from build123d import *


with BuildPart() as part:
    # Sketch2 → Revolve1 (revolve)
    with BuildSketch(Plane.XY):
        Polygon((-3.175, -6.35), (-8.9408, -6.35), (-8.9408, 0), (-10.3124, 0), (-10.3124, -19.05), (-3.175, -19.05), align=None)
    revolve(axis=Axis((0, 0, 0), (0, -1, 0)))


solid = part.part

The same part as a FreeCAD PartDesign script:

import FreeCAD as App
import Part
import Sketcher
Q = App.Units.Quantity


def add_polygon(sketch, points):
    """Adds a closed chain of lines whose ends are joined by coincident constraints."""
    first, n = sketch.GeometryCount, len(points)
    for a, b in zip(points, points[1:] + points[:1]):
        sketch.addGeometry(Part.LineSegment(App.Vector(*a, 0), App.Vector(*b, 0)), False)
    for i in range(n):
        sketch.addConstraint(Sketcher.Constraint("Coincident", first + i, 2, first + (i + 1) % n, 1))

doc = App.newDocument("Part")
body = doc.addObject("PartDesign::Body", "Body")

# Sketch on XY plane
sketch1 = body.newObject("Sketcher::SketchObject", "Sketch")
sketch1.AttachmentSupport = (doc.getObject("XY_Plane"), [""])
sketch1.MapMode = "FlatFace"
add_polygon(sketch1, [(-3.2, -6.3), (-8.9, -6.3), (-8.9, 0), (-10.3, 0), (-10.3, -19.1), (-3.2, -19.1)])  # lines 0-5
sketch1.addConstraint([
    Sketcher.Constraint("Horizontal", 0),
    Sketcher.Constraint("Vertical", 1),
    Sketcher.Constraint("Horizontal", 2),
    Sketcher.Constraint("Vertical", 3),
    Sketcher.Constraint("Horizontal", 4),
    Sketcher.Constraint("Vertical", 5),
    Sketcher.Constraint("PointOnObject", 1, 2, -1),
    Sketcher.Constraint("DistanceY", 5, 1, 5, 2, Q("0.5 in")),
    Sketcher.Constraint("DistanceY", 1, 1, 1, 2, Q("0.25 in")),
    Sketcher.Constraint("DistanceX", 0, 2, 0, 1, Q("0.227 in")),
    Sketcher.Constraint("DistanceX", 2, 2, 2, 1, Q("0.054 in")),
    Sketcher.Constraint("DistanceX", 0, 2, -1, 1, Q("0.352 in")),
])
revolution = body.newObject("PartDesign::Revolution", "Revolution")
revolution.Profile = sketch1
revolution.ReferenceAxis = (sketch1, ["V_Axis"])
revolution.Angle = 360

doc.recompute()
